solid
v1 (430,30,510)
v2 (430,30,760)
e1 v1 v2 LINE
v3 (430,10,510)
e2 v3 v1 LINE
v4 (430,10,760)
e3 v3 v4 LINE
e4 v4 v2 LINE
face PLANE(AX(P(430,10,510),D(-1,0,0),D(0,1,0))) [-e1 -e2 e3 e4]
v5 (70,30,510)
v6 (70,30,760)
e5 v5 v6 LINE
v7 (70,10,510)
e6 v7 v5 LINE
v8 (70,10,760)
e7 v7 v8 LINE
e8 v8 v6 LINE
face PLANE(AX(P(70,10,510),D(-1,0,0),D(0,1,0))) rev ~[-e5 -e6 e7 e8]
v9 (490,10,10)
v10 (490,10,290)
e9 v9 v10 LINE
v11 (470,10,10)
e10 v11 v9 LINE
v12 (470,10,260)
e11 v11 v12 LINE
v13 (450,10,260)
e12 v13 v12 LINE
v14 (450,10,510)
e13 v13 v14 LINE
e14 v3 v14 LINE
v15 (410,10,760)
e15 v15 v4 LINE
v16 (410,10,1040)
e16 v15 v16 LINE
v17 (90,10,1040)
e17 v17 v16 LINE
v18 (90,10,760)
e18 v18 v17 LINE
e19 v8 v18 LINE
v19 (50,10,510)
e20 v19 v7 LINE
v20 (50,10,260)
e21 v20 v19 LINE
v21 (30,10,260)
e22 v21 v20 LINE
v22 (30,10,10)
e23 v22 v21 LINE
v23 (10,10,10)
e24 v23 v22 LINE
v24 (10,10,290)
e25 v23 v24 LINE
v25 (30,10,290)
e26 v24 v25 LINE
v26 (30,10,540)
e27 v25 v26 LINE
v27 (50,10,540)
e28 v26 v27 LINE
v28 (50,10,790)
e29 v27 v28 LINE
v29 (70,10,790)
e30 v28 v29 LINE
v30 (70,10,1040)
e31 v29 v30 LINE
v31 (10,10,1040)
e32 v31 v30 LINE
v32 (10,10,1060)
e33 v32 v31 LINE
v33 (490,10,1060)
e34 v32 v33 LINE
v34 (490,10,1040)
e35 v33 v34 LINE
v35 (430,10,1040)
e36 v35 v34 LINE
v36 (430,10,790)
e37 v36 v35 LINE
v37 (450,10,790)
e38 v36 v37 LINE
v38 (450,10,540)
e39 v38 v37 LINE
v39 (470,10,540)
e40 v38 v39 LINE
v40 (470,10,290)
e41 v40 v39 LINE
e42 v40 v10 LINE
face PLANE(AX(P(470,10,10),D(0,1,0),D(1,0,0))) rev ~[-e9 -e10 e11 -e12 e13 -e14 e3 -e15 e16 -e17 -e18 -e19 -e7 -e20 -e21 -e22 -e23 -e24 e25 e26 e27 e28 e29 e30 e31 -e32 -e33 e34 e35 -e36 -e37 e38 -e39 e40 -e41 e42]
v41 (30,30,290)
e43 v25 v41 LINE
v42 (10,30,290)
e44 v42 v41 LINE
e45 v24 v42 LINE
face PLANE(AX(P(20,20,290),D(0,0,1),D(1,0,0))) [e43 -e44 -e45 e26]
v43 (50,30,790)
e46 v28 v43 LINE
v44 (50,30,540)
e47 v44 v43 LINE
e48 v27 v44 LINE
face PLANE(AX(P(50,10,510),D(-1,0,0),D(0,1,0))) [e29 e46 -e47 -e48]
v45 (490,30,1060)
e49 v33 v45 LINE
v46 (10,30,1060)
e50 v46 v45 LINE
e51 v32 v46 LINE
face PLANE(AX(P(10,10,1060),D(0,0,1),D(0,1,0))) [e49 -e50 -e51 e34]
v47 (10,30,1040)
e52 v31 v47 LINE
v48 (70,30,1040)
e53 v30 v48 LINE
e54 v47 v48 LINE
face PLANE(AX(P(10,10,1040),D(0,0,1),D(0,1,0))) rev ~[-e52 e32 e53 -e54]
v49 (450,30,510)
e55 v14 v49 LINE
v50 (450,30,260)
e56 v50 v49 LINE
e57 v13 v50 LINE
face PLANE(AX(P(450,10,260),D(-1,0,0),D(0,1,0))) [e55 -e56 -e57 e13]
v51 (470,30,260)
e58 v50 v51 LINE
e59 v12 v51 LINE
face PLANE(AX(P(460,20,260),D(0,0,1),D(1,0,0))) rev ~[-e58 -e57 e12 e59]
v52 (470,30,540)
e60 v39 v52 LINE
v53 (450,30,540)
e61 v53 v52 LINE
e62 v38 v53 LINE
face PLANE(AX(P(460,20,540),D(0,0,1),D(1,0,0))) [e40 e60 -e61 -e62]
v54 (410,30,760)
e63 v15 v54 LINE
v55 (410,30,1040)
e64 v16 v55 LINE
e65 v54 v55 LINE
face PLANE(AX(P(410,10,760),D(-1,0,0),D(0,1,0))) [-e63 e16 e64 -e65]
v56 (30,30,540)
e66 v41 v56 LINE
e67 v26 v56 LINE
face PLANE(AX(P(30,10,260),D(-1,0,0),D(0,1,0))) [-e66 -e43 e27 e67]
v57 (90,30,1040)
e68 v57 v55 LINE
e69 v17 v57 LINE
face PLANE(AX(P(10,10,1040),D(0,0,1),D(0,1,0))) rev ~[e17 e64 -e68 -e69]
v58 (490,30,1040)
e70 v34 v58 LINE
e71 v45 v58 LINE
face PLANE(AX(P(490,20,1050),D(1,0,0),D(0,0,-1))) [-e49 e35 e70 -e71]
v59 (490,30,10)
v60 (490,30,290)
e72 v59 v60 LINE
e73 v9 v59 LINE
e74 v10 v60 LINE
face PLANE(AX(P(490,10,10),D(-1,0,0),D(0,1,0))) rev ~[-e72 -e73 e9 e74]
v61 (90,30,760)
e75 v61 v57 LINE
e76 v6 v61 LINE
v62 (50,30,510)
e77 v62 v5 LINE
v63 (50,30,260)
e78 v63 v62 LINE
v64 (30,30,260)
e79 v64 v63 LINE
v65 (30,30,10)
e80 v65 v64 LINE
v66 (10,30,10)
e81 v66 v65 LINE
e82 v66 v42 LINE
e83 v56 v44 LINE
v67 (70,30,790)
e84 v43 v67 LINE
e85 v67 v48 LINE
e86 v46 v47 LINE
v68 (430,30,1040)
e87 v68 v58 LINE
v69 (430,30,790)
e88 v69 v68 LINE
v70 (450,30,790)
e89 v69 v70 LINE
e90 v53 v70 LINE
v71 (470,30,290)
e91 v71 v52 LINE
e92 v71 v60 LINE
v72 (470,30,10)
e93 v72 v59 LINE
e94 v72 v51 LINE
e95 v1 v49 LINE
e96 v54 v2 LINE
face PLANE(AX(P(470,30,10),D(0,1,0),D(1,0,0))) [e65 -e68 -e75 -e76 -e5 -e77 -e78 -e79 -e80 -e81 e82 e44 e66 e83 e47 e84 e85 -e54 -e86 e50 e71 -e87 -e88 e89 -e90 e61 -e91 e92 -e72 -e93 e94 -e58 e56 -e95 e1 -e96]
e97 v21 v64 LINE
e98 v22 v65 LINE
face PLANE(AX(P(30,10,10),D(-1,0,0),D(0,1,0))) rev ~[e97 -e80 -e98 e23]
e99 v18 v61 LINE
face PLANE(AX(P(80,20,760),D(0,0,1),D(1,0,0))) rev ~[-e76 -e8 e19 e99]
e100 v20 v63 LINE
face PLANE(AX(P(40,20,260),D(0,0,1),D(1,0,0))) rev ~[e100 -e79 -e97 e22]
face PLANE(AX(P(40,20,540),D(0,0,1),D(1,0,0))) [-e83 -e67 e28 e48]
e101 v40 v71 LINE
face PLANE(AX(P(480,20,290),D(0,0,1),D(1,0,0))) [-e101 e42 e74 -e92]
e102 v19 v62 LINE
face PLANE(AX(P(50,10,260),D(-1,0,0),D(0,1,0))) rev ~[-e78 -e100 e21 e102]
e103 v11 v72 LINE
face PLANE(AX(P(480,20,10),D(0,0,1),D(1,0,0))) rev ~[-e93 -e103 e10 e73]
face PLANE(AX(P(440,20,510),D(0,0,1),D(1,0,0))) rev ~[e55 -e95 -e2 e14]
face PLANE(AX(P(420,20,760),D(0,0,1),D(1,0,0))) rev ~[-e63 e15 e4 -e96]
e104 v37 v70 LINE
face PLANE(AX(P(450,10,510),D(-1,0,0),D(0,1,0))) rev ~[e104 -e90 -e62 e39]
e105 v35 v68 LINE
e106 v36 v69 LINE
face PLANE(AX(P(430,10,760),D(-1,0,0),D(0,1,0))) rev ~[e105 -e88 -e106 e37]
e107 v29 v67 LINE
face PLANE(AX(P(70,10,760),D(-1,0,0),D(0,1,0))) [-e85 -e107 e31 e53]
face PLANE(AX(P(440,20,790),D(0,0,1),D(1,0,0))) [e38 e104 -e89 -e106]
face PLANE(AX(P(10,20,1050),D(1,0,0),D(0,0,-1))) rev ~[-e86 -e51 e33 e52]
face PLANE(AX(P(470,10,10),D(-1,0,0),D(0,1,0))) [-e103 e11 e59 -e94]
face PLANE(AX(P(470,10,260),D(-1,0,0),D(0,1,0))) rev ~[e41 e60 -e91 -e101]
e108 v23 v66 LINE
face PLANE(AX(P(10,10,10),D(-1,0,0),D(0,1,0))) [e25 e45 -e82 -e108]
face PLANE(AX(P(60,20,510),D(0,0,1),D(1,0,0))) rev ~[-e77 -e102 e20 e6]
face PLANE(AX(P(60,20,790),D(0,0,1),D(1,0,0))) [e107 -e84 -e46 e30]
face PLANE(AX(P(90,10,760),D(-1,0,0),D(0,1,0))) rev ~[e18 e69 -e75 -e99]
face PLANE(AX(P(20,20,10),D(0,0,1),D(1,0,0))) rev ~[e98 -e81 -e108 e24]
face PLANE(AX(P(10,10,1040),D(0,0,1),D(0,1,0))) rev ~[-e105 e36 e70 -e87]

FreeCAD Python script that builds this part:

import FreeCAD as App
import Part
import Sketcher
from FreeCAD import Vector

doc = App.newDocument("Part")
params = doc.addObject("Spreadsheet::Sheet", "Params")
for row, (alias, value) in enumerate([
    ("sketch1_width", "20 mm"),
    ("pad1_length", "280 mm"),
    ("sketch2_width", "20 mm"),
    ("pad2_length", "280 mm"),
    ("sketch3_width", "20 mm"),
    ("pad3_length", "280 mm"),
    ("sketch4_width", "20 mm"),
    ("pad4_length", "280 mm"),
    ("sketch5_width", "20 mm"),
    ("pad5_length", "280 mm"),
    ("sketch6_width", "20 mm"),
    ("pad6_length", "280 mm"),
    ("sketch7_width", "20 mm"),
    ("pad7_length", "280 mm"),
    ("sketch8_width", "20 mm"),
    ("pad8_length", "280 mm"),
    ("sketch9_width", "20 mm"),
    ("pad9_length", "480 mm"),
], start=1):
    params.set(f"A{row}", alias)
    params.set(f"B{row}", "=" + value)
    params.setAlias(f"B{row}", alias)

body = doc.addObject("PartDesign::Body", "Body")

sketch1 = body.newObject("Sketcher::SketchObject", "Sketch")
sketch1.AttachmentSupport = (doc.getObject("XY_Plane"), [""])
sketch1.MapMode = "FlatFace"
sketch1.AttachmentOffset = App.Placement(Vector(0, 0, 760), App.Rotation())
sketch1.addGeometry(Part.LineSegment(Vector(70, 30, 0), Vector(70, 10, 0)), False)
sketch1.addGeometry(Part.LineSegment(Vector(70, 10, 0), Vector(90, 10, 0)), False)
sketch1.addGeometry(Part.LineSegment(Vector(90, 10, 0), Vector(90, 30, 0)), False)
sketch1.addGeometry(Part.LineSegment(Vector(90, 30, 0), Vector(70, 30, 0)), False)
sketch1.addConstraint(Sketcher.Constraint("Coincident", 0, 2, 1, 1))
sketch1.addConstraint(Sketcher.Constraint("Coincident", 1, 2, 2, 1))
sketch1.addConstraint(Sketcher.Constraint("Coincident", 2, 2, 3, 1))
sketch1.addConstraint(Sketcher.Constraint("Coincident", 3, 2, 0, 1))
sketch1.addConstraint(Sketcher.Constraint("Vertical", 0))
sketch1.addConstraint(Sketcher.Constraint("Horizontal", 1))
sketch1.addConstraint(Sketcher.Constraint("Vertical", 2))
sketch1.addConstraint(Sketcher.Constraint("Horizontal", 3))
sketch1.addConstraint(Sketcher.Constraint("Equal", 3, 0))
sketch1.addConstraint(Sketcher.Constraint("DistanceX", 1, 1, 1, 2, 20.0))
sketch1.addConstraint(Sketcher.Constraint("DistanceX", -1, 1, 0, 2, 70.0))
sketch1.addConstraint(Sketcher.Constraint("DistanceY", -1, 1, 0, 2, 10.0))
sketch1.setExpression("Constraints[9]", "Params.sketch1_width")
pad1 = body.newObject("PartDesign::Pad", "Pad")
pad1.Profile = sketch1
pad1.setExpression("Length", "Params.pad1_length")
body2 = doc.addObject("PartDesign::Body", "Body001")

sketch2 = body2.newObject("Sketcher::SketchObject", "Sketch001")
sketch2.AttachmentSupport = (doc.getObject("XY_Plane001"), [""])
sketch2.MapMode = "FlatFace"
sketch2.AttachmentOffset = App.Placement(Vector(0, 0, 760), App.Rotation())
sketch2.addGeometry(Part.LineSegment(Vector(410, 30, 0), Vector(410, 10, 0)), False)
sketch2.addGeometry(Part.LineSegment(Vector(410, 10, 0), Vector(430, 10, 0)), False)
sketch2.addGeometry(Part.LineSegment(Vector(430, 10, 0), Vector(430, 30, 0)), False)
sketch2.addGeometry(Part.LineSegment(Vector(430, 30, 0), Vector(410, 30, 0)), False)
sketch2.addConstraint(Sketcher.Constraint("Coincident", 0, 2, 1, 1))
sketch2.addConstraint(Sketcher.Constraint("Coincident", 1, 2, 2, 1))
sketch2.addConstraint(Sketcher.Constraint("Coincident", 2, 2, 3, 1))
sketch2.addConstraint(Sketcher.Constraint("Coincident", 3, 2, 0, 1))
sketch2.addConstraint(Sketcher.Constraint("Vertical", 0))
sketch2.addConstraint(Sketcher.Constraint("Horizontal", 1))
sketch2.addConstraint(Sketcher.Constraint("Vertical", 2))
sketch2.addConstraint(Sketcher.Constraint("Horizontal", 3))
sketch2.addConstraint(Sketcher.Constraint("Equal", 3, 0))
sketch2.addConstraint(Sketcher.Constraint("DistanceX", 1, 1, 1, 2, 20.0))
sketch2.addConstraint(Sketcher.Constraint("DistanceX", -1, 1, 0, 2, 410.0))
sketch2.addConstraint(Sketcher.Constraint("DistanceY", -1, 1, 0, 2, 10.0))
sketch2.setExpression("Constraints[9]", "Params.sketch2_width")
pad2 = body2.newObject("PartDesign::Pad", "Pad001")
pad2.Profile = sketch2
pad2.setExpression("Length", "Params.pad2_length")
body3 = doc.addObject("PartDesign::Body", "Body002")

sketch3 = body3.newObject("Sketcher::SketchObject", "Sketch002")
sketch3.AttachmentSupport = (doc.getObject("XY_Plane002"), [""])
sketch3.MapMode = "FlatFace"
sketch3.AttachmentOffset = App.Placement(Vector(0, 0, 510), App.Rotation())
sketch3.addGeometry(Part.LineSegment(Vector(50, 30, 0), Vector(50, 10, 0)), False)
sketch3.addGeometry(Part.LineSegment(Vector(50, 10, 0), Vector(70, 10, 0)), False)
sketch3.addGeometry(Part.LineSegment(Vector(70, 10, 0), Vector(70, 30, 0)), False)
sketch3.addGeometry(Part.LineSegment(Vector(70, 30, 0), Vector(50, 30, 0)), False)
sketch3.addConstraint(Sketcher.Constraint("Coincident", 0, 2, 1, 1))
sketch3.addConstraint(Sketcher.Constraint("Coincident", 1, 2, 2, 1))
sketch3.addConstraint(Sketcher.Constraint("Coincident", 2, 2, 3, 1))
sketch3.addConstraint(Sketcher.Constraint("Coincident", 3, 2, 0, 1))
sketch3.addConstraint(Sketcher.Constraint("Vertical", 0))
sketch3.addConstraint(Sketcher.Constraint("Horizontal", 1))
sketch3.addConstraint(Sketcher.Constraint("Vertical", 2))
sketch3.addConstraint(Sketcher.Constraint("Horizontal", 3))
sketch3.addConstraint(Sketcher.Constraint("Equal", 3, 0))
sketch3.addConstraint(Sketcher.Constraint("DistanceX", 1, 1, 1, 2, 20.0))
sketch3.addConstraint(Sketcher.Constraint("DistanceX", -1, 1, 0, 2, 50.0))
sketch3.addConstraint(Sketcher.Constraint("DistanceY", -1, 1, 0, 2, 10.0))
sketch3.setExpression("Constraints[9]", "Params.sketch3_width")
pad3 = body3.newObject("PartDesign::Pad", "Pad002")
pad3.Profile = sketch3
pad3.setExpression("Length", "Params.pad3_length")
body4 = doc.addObject("PartDesign::Body", "Body003")

sketch4 = body4.newObject("Sketcher::SketchObject", "Sketch003")
sketch4.AttachmentSupport = (doc.getObject("XY_Plane003"), [""])
sketch4.MapMode = "FlatFace"
sketch4.AttachmentOffset = App.Placement(Vector(0, 0, 510), App.Rotation())
sketch4.addGeometry(Part.LineSegment(Vector(430, 30, 0), Vector(430, 10, 0)), False)
sketch4.addGeometry(Part.LineSegment(Vector(430, 10, 0), Vector(450, 10, 0)), False)
sketch4.addGeometry(Part.LineSegment(Vector(450, 10, 0), Vector(450, 30, 0)), False)
sketch4.addGeometry(Part.LineSegment(Vector(450, 30, 0), Vector(430, 30, 0)), False)
sketch4.addConstraint(Sketcher.Constraint("Coincident", 0, 2, 1, 1))
sketch4.addConstraint(Sketcher.Constraint("Coincident", 1, 2, 2, 1))
sketch4.addConstraint(Sketcher.Constraint("Coincident", 2, 2, 3, 1))
sketch4.addConstraint(Sketcher.Constraint("Coincident", 3, 2, 0, 1))
sketch4.addConstraint(Sketcher.Constraint("Vertical", 0))
sketch4.addConstraint(Sketcher.Constraint("Horizontal", 1))
sketch4.addConstraint(Sketcher.Constraint("Vertical", 2))
sketch4.addConstraint(Sketcher.Constraint("Horizontal", 3))
sketch4.addConstraint(Sketcher.Constraint("Equal", 3, 0))
sketch4.addConstraint(Sketcher.Constraint("DistanceX", 1, 1, 1, 2, 20.0))
sketch4.addConstraint(Sketcher.Constraint("DistanceX", -1, 1, 0, 2, 430.0))
sketch4.addConstraint(Sketcher.Constraint("DistanceY", -1, 1, 0, 2, 10.0))
sketch4.setExpression("Constraints[9]", "Params.sketch4_width")
pad4 = body4.newObject("PartDesign::Pad", "Pad003")
pad4.Profile = sketch4
pad4.setExpression("Length", "Params.pad4_length")
body5 = doc.addObject("PartDesign::Body", "Body004")

sketch5 = body5.newObject("Sketcher::SketchObject", "Sketch004")
sketch5.AttachmentSupport = (doc.getObject("XY_Plane004"), [""])
sketch5.MapMode = "FlatFace"
sketch5.AttachmentOffset = App.Placement(Vector(0, 0, 260), App.Rotation())
sketch5.addGeometry(Part.LineSegment(Vector(30, 30, 0), Vector(30, 10, 0)), False)
sketch5.addGeometry(Part.LineSegment(Vector(30, 10, 0), Vector(50, 10, 0)), False)
sketch5.addGeometry(Part.LineSegment(Vector(50, 10, 0), Vector(50, 30, 0)), False)
sketch5.addGeometry(Part.LineSegment(Vector(50, 30, 0), Vector(30, 30, 0)), False)
sketch5.addConstraint(Sketcher.Constraint("Coincident", 0, 2, 1, 1))
sketch5.addConstraint(Sketcher.Constraint("Coincident", 1, 2, 2, 1))
sketch5.addConstraint(Sketcher.Constraint("Coincident", 2, 2, 3, 1))
sketch5.addConstraint(Sketcher.Constraint("Coincident", 3, 2, 0, 1))
sketch5.addConstraint(Sketcher.Constraint("Vertical", 0))
sketch5.addConstraint(Sketcher.Constraint("Horizontal", 1))
sketch5.addConstraint(Sketcher.Constraint("Vertical", 2))
sketch5.addConstraint(Sketcher.Constraint("Horizontal", 3))
sketch5.addConstraint(Sketcher.Constraint("Equal", 3, 0))
sketch5.addConstraint(Sketcher.Constraint("DistanceX", 1, 1, 1, 2, 20.0))
sketch5.addConstraint(Sketcher.Constraint("DistanceX", -1, 1, 0, 2, 30.0))
sketch5.addConstraint(Sketcher.Constraint("DistanceY", -1, 1, 0, 2, 10.0))
sketch5.setExpression("Constraints[9]", "Params.sketch5_width")
pad5 = body5.newObject("PartDesign::Pad", "Pad004")
pad5.Profile = sketch5
pad5.setExpression("Length", "Params.pad5_length")
body6 = doc.addObject("PartDesign::Body", "Body005")

sketch6 = body6.newObject("Sketcher::SketchObject", "Sketch005")
sketch6.AttachmentSupport = (doc.getObject("XY_Plane005"), [""])
sketch6.MapMode = "FlatFace"
sketch6.AttachmentOffset = App.Placement(Vector(0, 0, 260), App.Rotation())
sketch6.addGeometry(Part.LineSegment(Vector(450, 30, 0), Vector(450, 10, 0)), False)
sketch6.addGeometry(Part.LineSegment(Vector(450, 10, 0), Vector(470, 10, 0)), False)
sketch6.addGeometry(Part.LineSegment(Vector(470, 10, 0), Vector(470, 30, 0)), False)
sketch6.addGeometry(Part.LineSegment(Vector(470, 30, 0), Vector(450, 30, 0)), False)
sketch6.addConstraint(Sketcher.Constraint("Coincident", 0, 2, 1, 1))
sketch6.addConstraint(Sketcher.Constraint("Coincident", 1, 2, 2, 1))
sketch6.addConstraint(Sketcher.Constraint("Coincident", 2, 2, 3, 1))
sketch6.addConstraint(Sketcher.Constraint("Coincident", 3, 2, 0, 1))
sketch6.addConstraint(Sketcher.Constraint("Vertical", 0))
sketch6.addConstraint(Sketcher.Constraint("Horizontal", 1))
sketch6.addConstraint(Sketcher.Constraint("Vertical", 2))
sketch6.addConstraint(Sketcher.Constraint("Horizontal", 3))
sketch6.addConstraint(Sketcher.Constraint("Equal", 3, 0))
sketch6.addConstraint(Sketcher.Constraint("DistanceX", 1, 1, 1, 2, 20.0))
sketch6.addConstraint(Sketcher.Constraint("DistanceX", -1, 1, 0, 2, 450.0))
sketch6.addConstraint(Sketcher.Constraint("DistanceY", -1, 1, 0, 2, 10.0))
sketch6.setExpression("Constraints[9]", "Params.sketch6_width")
pad6 = body6.newObject("PartDesign::Pad", "Pad005")
pad6.Profile = sketch6
pad6.setExpression("Length", "Params.pad6_length")
body7 = doc.addObject("PartDesign::Body", "Body006")

sketch7 = body7.newObject("Sketcher::SketchObject", "Sketch006")
sketch7.AttachmentSupport = (doc.getObject("XY_Plane006"), [""])
sketch7.MapMode = "FlatFace"
sketch7.AttachmentOffset = App.Placement(Vector(0, 0, 10), App.Rotation())
sketch7.addGeometry(Part.LineSegment(Vector(10, 30, 0), Vector(10, 10, 0)), False)
sketch7.addGeometry(Part.LineSegment(Vector(10, 10, 0), Vector(30, 10, 0)), False)
sketch7.addGeometry(Part.LineSegment(Vector(30, 10, 0), Vector(30, 30, 0)), False)
sketch7.addGeometry(Part.LineSegment(Vector(30, 30, 0), Vector(10, 30, 0)), False)
sketch7.addConstraint(Sketcher.Constraint("Coincident", 0, 2, 1, 1))
sketch7.addConstraint(Sketcher.Constraint("Coincident", 1, 2, 2, 1))
sketch7.addConstraint(Sketcher.Constraint("Coincident", 2, 2, 3, 1))
sketch7.addConstraint(Sketcher.Constraint("Coincident", 3, 2, 0, 1))
sketch7.addConstraint(Sketcher.Constraint("Vertical", 0))
sketch7.addConstraint(Sketcher.Constraint("Horizontal", 1))
sketch7.addConstraint(Sketcher.Constraint("Vertical", 2))
sketch7.addConstraint(Sketcher.Constraint("Horizontal", 3))
sketch7.addConstraint(Sketcher.Constraint("Equal", 3, 0))
sketch7.addConstraint(Sketcher.Constraint("DistanceX", 1, 1, 1, 2, 20.0))
sketch7.addConstraint(Sketcher.Constraint("DistanceX", -1, 1, 0, 2, 10.0))
sketch7.addConstraint(Sketcher.Constraint("DistanceY", -1, 1, 0, 2, 10.0))
sketch7.setExpression("Constraints[9]", "Params.sketch7_width")
pad7 = body7.newObject("PartDesign::Pad", "Pad006")
pad7.Profile = sketch7
pad7.setExpression("Length", "Params.pad7_length")
body8 = doc.addObject("PartDesign::Body", "Body007")

sketch8 = body8.newObject("Sketcher::SketchObject", "Sketch007")
sketch8.AttachmentSupport = (doc.getObject("XY_Plane007"), [""])
sketch8.MapMode = "FlatFace"
sketch8.AttachmentOffset = App.Placement(Vector(0, 0, 10), App.Rotation())
sketch8.addGeometry(Part.LineSegment(Vector(470, 30, 0), Vector(470, 10, 0)), False)
sketch8.addGeometry(Part.LineSegment(Vector(470, 10, 0), Vector(490, 10, 0)), False)
sketch8.addGeometry(Part.LineSegment(Vector(490, 10, 0), Vector(490, 30, 0)), False)
sketch8.addGeometry(Part.LineSegment(Vector(490, 30, 0), Vector(470, 30, 0)), False)
sketch8.addConstraint(Sketcher.Constraint("Coincident", 0, 2, 1, 1))
sketch8.addConstraint(Sketcher.Constraint("Coincident", 1, 2, 2, 1))
sketch8.addConstraint(Sketcher.Constraint("Coincident", 2, 2, 3, 1))
sketch8.addConstraint(Sketcher.Constraint("Coincident", 3, 2, 0, 1))
sketch8.addConstraint(Sketcher.Constraint("Vertical", 0))
sketch8.addConstraint(Sketcher.Constraint("Horizontal", 1))
sketch8.addConstraint(Sketcher.Constraint("Vertical", 2))
sketch8.addConstraint(Sketcher.Constraint("Horizontal", 3))
sketch8.addConstraint(Sketcher.Constraint("Equal", 3, 0))
sketch8.addConstraint(Sketcher.Constraint("DistanceX", 1, 1, 1, 2, 20.0))
sketch8.addConstraint(Sketcher.Constraint("DistanceX", -1, 1, 0, 2, 470.0))
sketch8.addConstraint(Sketcher.Constraint("DistanceY", -1, 1, 0, 2, 10.0))
sketch8.setExpression("Constraints[9]", "Params.sketch8_width")
pad8 = body8.newObject("PartDesign::Pad", "Pad007")
pad8.Profile = sketch8
pad8.setExpression("Length", "Params.pad8_length")
body9 = doc.addObject("PartDesign::Body", "Body008")

sketch9 = body9.newObject("Sketcher::SketchObject", "Sketch008")
sketch9.AttachmentSupport = (doc.getObject("XY_Plane008"), [""])
sketch9.MapMode = "FlatFace"
sketch9.addGeometry(Part.LineSegment(Vector(0, 20, 0), Vector(0, 0, 0)), False)
sketch9.addGeometry(Part.LineSegment(Vector(0, 0, 0), Vector(20, 0, 0)), False)
sketch9.addGeometry(Part.LineSegment(Vector(20, 0, 0), Vector(20, 20, 0)), False)
sketch9.addGeometry(Part.LineSegment(Vector(20, 20, 0), Vector(0, 20, 0)), False)
sketch9.addConstraint(Sketcher.Constraint("Coincident", 0, 2, 1, 1))
sketch9.addConstraint(Sketcher.Constraint("Coincident", 1, 2, 2, 1))
sketch9.addConstraint(Sketcher.Constraint("Coincident", 2, 2, 3, 1))
sketch9.addConstraint(Sketcher.Constraint("Coincident", 3, 2, 0, 1))
sketch9.addConstraint(Sketcher.Constraint("Vertical", 0))
sketch9.addConstraint(Sketcher.Constraint("Horizontal", 1))
sketch9.addConstraint(Sketcher.Constraint("Vertical", 2))
sketch9.addConstraint(Sketcher.Constraint("Horizontal", 3))
sketch9.addConstraint(Sketcher.Constraint("Coincident", 0, 2, -1, 1))
sketch9.addConstraint(Sketcher.Constraint("Equal", 3, 0))
sketch9.addConstraint(Sketcher.Constraint("DistanceX", 1, 1, 1, 2, 20.0))
sketch9.setExpression("Constraints[10]", "Params.sketch9_width")
pad9 = body9.newObject("PartDesign::Pad", "Pad008")
pad9.Profile = sketch9
pad9.setExpression("Length", "Params.pad9_length")
body10 = doc.addObject("PartDesign::Body", "Body009")
doc.recompute()

body9.Placement = App.Placement(Vector(0, 0, 0), App.Rotation(Vector(0, 1, 0), 90))
boolean = body10.newObject("PartDesign::Boolean", "Boolean")
boolean.Type = "Fuse"
boolean.addObjects([body9])
body11 = doc.addObject("PartDesign::Body", "Body010")
doc.recompute()

body10.Placement = App.Placement(Vector(10, 10, 1060), App.Rotation(Vector(0, 0, 1), 0))
boolean2 = body11.newObject("PartDesign::Boolean", "Boolean001")
boolean2.Type = "Fuse"
boolean2.addObjects([body10])
doc.recompute()

boolean3 = body11.newObject("PartDesign::Boolean", "Boolean002")
boolean3.Type = "Fuse"
boolean3.addObjects([body])
doc.recompute()

boolean4 = body11.newObject("PartDesign::Boolean", "Boolean003")
boolean4.Type = "Fuse"
boolean4.addObjects([body2])
doc.recompute()

boolean5 = body11.newObject("PartDesign::Boolean", "Boolean004")
boolean5.Type = "Fuse"
boolean5.addObjects([body3])
doc.recompute()

boolean6 = body11.newObject("PartDesign::Boolean", "Boolean005")
boolean6.Type = "Fuse"
boolean6.addObjects([body4])
doc.recompute()

boolean7 = body11.newObject("PartDesign::Boolean", "Boolean006")
boolean7.Type = "Fuse"
boolean7.addObjects([body5])
doc.recompute()

boolean8 = body11.newObject("PartDesign::Boolean", "Boolean007")
boolean8.Type = "Fuse"
boolean8.addObjects([body6])
doc.recompute()

boolean9 = body11.newObject("PartDesign::Boolean", "Boolean008")
boolean9.Type = "Fuse"
boolean9.addObjects([body7])
doc.recompute()

boolean10 = body11.newObject("PartDesign::Boolean", "Boolean009")
boolean10.Type = "Fuse"
boolean10.addObjects([body8])

doc.recompute()
